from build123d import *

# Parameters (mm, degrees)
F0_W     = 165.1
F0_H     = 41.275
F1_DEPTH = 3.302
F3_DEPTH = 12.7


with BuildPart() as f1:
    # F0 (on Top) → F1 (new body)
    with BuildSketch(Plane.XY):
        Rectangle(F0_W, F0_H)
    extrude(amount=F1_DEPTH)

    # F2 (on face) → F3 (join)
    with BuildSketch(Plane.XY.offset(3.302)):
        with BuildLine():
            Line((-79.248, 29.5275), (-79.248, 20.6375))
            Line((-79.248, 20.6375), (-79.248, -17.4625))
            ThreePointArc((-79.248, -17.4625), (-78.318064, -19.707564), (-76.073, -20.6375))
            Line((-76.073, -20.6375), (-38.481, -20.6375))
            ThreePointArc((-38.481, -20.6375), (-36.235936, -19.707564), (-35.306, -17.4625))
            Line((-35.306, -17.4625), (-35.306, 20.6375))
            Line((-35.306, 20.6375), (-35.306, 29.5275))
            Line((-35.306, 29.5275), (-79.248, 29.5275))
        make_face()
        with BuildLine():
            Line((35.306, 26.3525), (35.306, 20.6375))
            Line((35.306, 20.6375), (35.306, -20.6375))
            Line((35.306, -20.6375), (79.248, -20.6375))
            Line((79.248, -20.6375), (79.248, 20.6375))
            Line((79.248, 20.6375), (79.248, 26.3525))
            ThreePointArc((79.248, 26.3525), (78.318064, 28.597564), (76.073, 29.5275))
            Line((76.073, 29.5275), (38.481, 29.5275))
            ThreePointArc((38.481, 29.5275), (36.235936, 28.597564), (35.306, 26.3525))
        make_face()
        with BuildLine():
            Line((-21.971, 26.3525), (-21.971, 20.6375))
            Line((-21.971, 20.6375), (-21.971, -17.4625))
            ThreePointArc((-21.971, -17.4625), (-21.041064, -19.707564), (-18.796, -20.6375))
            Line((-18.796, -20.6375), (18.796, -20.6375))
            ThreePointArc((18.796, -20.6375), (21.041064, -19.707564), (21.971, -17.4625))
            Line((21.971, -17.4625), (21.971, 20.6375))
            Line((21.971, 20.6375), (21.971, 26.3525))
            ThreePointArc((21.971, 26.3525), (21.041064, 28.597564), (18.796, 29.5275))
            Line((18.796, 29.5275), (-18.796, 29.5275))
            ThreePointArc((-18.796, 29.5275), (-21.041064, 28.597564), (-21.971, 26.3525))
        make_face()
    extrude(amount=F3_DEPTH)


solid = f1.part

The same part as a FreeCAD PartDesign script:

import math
import FreeCAD as App
import Part
import Sketcher
from FreeCAD import Vector
Q = App.Units.Quantity

doc = App.newDocument("Part")
body = doc.addObject("PartDesign::Body", "Body")

# Sketch on XY plane
sketch1 = body.newObject("Sketcher::SketchObject", "Sketch")
sketch1.AttachmentSupport = (doc.getObject("XY_Plane"), [""])
sketch1.MapMode = "FlatFace"
sketch1.addGeometry(Part.LineSegment(Vector(-83, 21, 0), Vector(-83, -21, 0)), False)
sketch1.addGeometry(Part.LineSegment(Vector(-83, -21, 0), Vector(83, -21, 0)), False)
sketch1.addGeometry(Part.LineSegment(Vector(83, -21, 0), Vector(83, 21, 0)), False)
sketch1.addGeometry(Part.LineSegment(Vector(83, 21, 0), Vector(-83, 21, 0)), False)
sketch1.addConstraint(Sketcher.Constraint("Coincident", 0, 2, 1, 1))
sketch1.addConstraint(Sketcher.Constraint("Coincident", 1, 2, 2, 1))
sketch1.addConstraint(Sketcher.Constraint("Coincident", 2, 2, 3, 1))
sketch1.addConstraint(Sketcher.Constraint("Coincident", 3, 2, 0, 1))
sketch1.addConstraint(Sketcher.Constraint("Vertical", 0))
sketch1.addConstraint(Sketcher.Constraint("Horizontal", 1))
sketch1.addConstraint(Sketcher.Constraint("Vertical", 2))
sketch1.addConstraint(Sketcher.Constraint("Horizontal", 3))
sketch1.addConstraint(Sketcher.Constraint("Symmetric", 0, 2, 2, 2, -1, 1))
sketch1.addConstraint(Sketcher.Constraint("DistanceX", 1, 1, 1, 2, Q("6.5 in")))
sketch1.addConstraint(Sketcher.Constraint("DistanceY", 0, 2, 0, 1, Q("1.625 in")))
pad1 = body.newObject("PartDesign::Pad", "Pad")
pad1.Profile = sketch1
pad1.Length = Q("0.13 in")

# Sketch on XY plane
sketch2 = body.newObject("Sketcher::SketchObject", "Sketch001")
sketch2.AttachmentSupport = (doc.getObject("XY_Plane"), [""])
sketch2.MapMode = "FlatFace"
sketch2.AttachmentOffset = App.Placement(Vector(0, 0, 0.13 * 25.4), App.Rotation())
sketch2.addGeometry(Part.LineSegment(Vector(-79.2, 29.5, 0), Vector(-79.2, -17.5, 0)), False)
sketch2.addGeometry(Part.ArcOfCircle(Part.Circle(Vector(-76.1, -17.5, 0), Vector(0, 0, 1), 3.2), math.radians(-180), math.radians(-90)), False)
sketch2.addGeometry(Part.LineSegment(Vector(-76.1, -20.6, 0), Vector(-38.5, -20.6, 0)), False)
sketch2.addGeometry(Part.ArcOfCircle(Part.Circle(Vector(-38.5, -17.5, 0), Vector(0, 0, 1), 3.2), math.radians(-90), math.radians(0)), False)
sketch2.addGeometry(Part.LineSegment(Vector(-35.3, -17.5, 0), Vector(-35.3, 29.5, 0)), False)
sketch2.addGeometry(Part.LineSegment(Vector(-35.3, 29.5, 0), Vector(-79.2, 29.5, 0)), False)
sketch2.addGeometry(Part.LineSegment(Vector(35.3, 26.4, 0), Vector(35.3, -20.6, 0)), False)
sketch2.addGeometry(Part.LineSegment(Vector(35.3, -20.6, 0), Vector(79.2, -20.6, 0)), False)
sketch2.addGeometry(Part.LineSegment(Vector(79.2, -20.6, 0), Vector(79.2, 26.4, 0)), False)
sketch2.addGeometry(Part.ArcOfCircle(Part.Circle(Vector(76.1, 26.4, 0), Vector(0, 0, 1), 3.2), math.radians(0), math.radians(90)), False)
sketch2.addGeometry(Part.LineSegment(Vector(76.1, 29.5, 0), Vector(38.5, 29.5, 0)), False)
sketch2.addGeometry(Part.ArcOfCircle(Part.Circle(Vector(38.5, 26.4, 0), Vector(0, 0, 1), 3.2), math.radians(90), math.radians(180)), False)
sketch2.addGeometry(Part.LineSegment(Vector(-22, 26.4, 0), Vector(-22, -17.5, 0)), False)
sketch2.addGeometry(Part.ArcOfCircle(Part.Circle(Vector(-18.8, -17.5, 0), Vector(0, 0, 1), 3.2), math.radians(-180), math.radians(-90)), False)
sketch2.addGeometry(Part.LineSegment(Vector(-18.8, -20.6, 0), Vector(18.8, -20.6, 0)), False)
sketch2.addGeometry(Part.ArcOfCircle(Part.Circle(Vector(18.8, -17.5, 0), Vector(0, 0, 1), 3.2), math.radians(-90), math.radians(0)), False)
sketch2.addGeometry(Part.LineSegment(Vector(22, -17.5, 0), Vector(22, 26.4, 0)), False)
sketch2.addGeometry(Part.ArcOfCircle(Part.Circle(Vector(18.8, 26.4, 0), Vector(0, 0, 1), 3.2), math.radians(0), math.radians(90)), False)
sketch2.addGeometry(Part.LineSegment(Vector(18.8, 29.5, 0), Vector(-18.8, 29.5, 0)), False)
sketch2.addGeometry(Part.ArcOfCircle(Part.Circle(Vector(-18.8, 26.4, 0), Vector(0, 0, 1), 3.2), math.radians(90), math.radians(180)), False)
sketch2.addConstraint(Sketcher.Constraint("Tangent", 0, 2, 1, 1))
sketch2.addConstraint(Sketcher.Constraint("Tangent", 1, 2, 2, 1))
sketch2.addConstraint(Sketcher.Constraint("Tangent", 2, 2, 3, 1))
sketch2.addConstraint(Sketcher.Constraint("Tangent", 3, 2, 4, 1))
sketch2.addConstraint(Sketcher.Constraint("Coincident", 4, 2, 5, 1))
sketch2.addConstraint(Sketcher.Constraint("Coincident", 5, 2, 0, 1))
sketch2.addConstraint(Sketcher.Constraint("Coincident", 6, 2, 7, 1))
sketch2.addConstraint(Sketcher.Constraint("Coincident", 7, 2, 8, 1))
sketch2.addConstraint(Sketcher.Constraint("Tangent", 8, 2, 9, 1))
sketch2.addConstraint(Sketcher.Constraint("Tangent", 9, 2, 10, 1))
sketch2.addConstraint(Sketcher.Constraint("Tangent", 10, 2, 11, 1))
sketch2.addConstraint(Sketcher.Constraint("Tangent", 11, 2, 6, 1))
sketch2.addConstraint(Sketcher.Constraint("Tangent", 12, 2, 13, 1))
sketch2.addConstraint(Sketcher.Constraint("Tangent", 13, 2, 14, 1))
sketch2.addConstraint(Sketcher.Constraint("Tangent", 14, 2, 15, 1))
sketch2.addConstraint(Sketcher.Constraint("Tangent", 15, 2, 16, 1))
sketch2.addConstraint(Sketcher.Constraint("Tangent", 16, 2, 17, 1))
sketch2.addConstraint(Sketcher.Constraint("Tangent", 17, 2, 18, 1))
sketch2.addConstraint(Sketcher.Constraint("Tangent", 18, 2, 19, 1))
sketch2.addConstraint(Sketcher.Constraint("Tangent", 19, 2, 12, 1))
sketch2.addConstraint(Sketcher.Constraint("Vertical", 0))
sketch2.addConstraint(Sketcher.Constraint("Horizontal", 2))
sketch2.addConstraint(Sketcher.Constraint("Vertical", 4))
sketch2.addConstraint(Sketcher.Constraint("Horizontal", 5))
sketch2.addConstraint(Sketcher.Constraint("Vertical", 6))
sketch2.addConstraint(Sketcher.Constraint("Horizontal", 7))
sketch2.addConstraint(Sketcher.Constraint("Vertical", 8))
sketch2.addConstraint(Sketcher.Constraint("Horizontal", 10))
sketch2.addConstraint(Sketcher.Constraint("Vertical", 12))
sketch2.addConstraint(Sketcher.Constraint("Horizontal", 14))
sketch2.addConstraint(Sketcher.Constraint("Vertical", 16))
sketch2.addConstraint(Sketcher.Constraint("Horizontal", 18))
sketch2.addConstraint(Sketcher.Constraint("Equal", 1, 3))
sketch2.addConstraint(Sketcher.Constraint("Equal", 3, 9))
sketch2.addConstraint(Sketcher.Constraint("Equal", 9, 11))
sketch2.addConstraint(Sketcher.Constraint("Equal", 11, 13))
sketch2.addConstraint(Sketcher.Constraint("Equal", 13, 15))
sketch2.addConstraint(Sketcher.Constraint("Equal", 15, 17))
sketch2.addConstraint(Sketcher.Constraint("Equal", 17, 19))
sketch2.addConstraint(Sketcher.Constraint("Horizontal", 3, 3, 13, 3))
sketch2.addConstraint(Sketcher.Constraint("Horizontal", 11, 3, 17, 3))
sketch2.addConstraint(Sketcher.Constraint("Horizontal", 2, 2, 6, 2))
sketch2.addConstraint(Sketcher.Constraint("Horizontal", 5, 2, 9, 2))
sketch2.addConstraint(Sketcher.Constraint("Equal", 5, 7))
sketch2.addConstraint(Sketcher.Constraint("Equal", 10, 14))
sketch2.addConstraint(Sketcher.Constraint("Radius", 1, Q("0.125 in")))
sketch2.addConstraint(Sketcher.Constraint("DistanceX", 2, 1, 2, 2, Q("1.48 in")))
sketch2.addConstraint(Sketcher.Constraint("DistanceY", 0, 2, 0, 1, Q("1.85 in")))
sketch2.addConstraint(Sketcher.Constraint("DistanceX", 13, 3, -1, 1, Q("0.74 in")))
sketch2.addConstraint(Sketcher.Constraint("DistanceX", 0, 2, -1, 1, Q("3.12 in")))
sketch2.addConstraint(Sketcher.Constraint("DistanceX", -1, 1, 6, 2, Q("1.39 in")))
sketch2.addConstraint(Sketcher.Constraint("DistanceY", 1, 3, -1, 1, Q("0.6875 in")))
pad2 = body.newObject("PartDesign::Pad", "Pad001")
pad2.Profile = sketch2
pad2.Length = Q("0.5 in")

doc.recompute()
